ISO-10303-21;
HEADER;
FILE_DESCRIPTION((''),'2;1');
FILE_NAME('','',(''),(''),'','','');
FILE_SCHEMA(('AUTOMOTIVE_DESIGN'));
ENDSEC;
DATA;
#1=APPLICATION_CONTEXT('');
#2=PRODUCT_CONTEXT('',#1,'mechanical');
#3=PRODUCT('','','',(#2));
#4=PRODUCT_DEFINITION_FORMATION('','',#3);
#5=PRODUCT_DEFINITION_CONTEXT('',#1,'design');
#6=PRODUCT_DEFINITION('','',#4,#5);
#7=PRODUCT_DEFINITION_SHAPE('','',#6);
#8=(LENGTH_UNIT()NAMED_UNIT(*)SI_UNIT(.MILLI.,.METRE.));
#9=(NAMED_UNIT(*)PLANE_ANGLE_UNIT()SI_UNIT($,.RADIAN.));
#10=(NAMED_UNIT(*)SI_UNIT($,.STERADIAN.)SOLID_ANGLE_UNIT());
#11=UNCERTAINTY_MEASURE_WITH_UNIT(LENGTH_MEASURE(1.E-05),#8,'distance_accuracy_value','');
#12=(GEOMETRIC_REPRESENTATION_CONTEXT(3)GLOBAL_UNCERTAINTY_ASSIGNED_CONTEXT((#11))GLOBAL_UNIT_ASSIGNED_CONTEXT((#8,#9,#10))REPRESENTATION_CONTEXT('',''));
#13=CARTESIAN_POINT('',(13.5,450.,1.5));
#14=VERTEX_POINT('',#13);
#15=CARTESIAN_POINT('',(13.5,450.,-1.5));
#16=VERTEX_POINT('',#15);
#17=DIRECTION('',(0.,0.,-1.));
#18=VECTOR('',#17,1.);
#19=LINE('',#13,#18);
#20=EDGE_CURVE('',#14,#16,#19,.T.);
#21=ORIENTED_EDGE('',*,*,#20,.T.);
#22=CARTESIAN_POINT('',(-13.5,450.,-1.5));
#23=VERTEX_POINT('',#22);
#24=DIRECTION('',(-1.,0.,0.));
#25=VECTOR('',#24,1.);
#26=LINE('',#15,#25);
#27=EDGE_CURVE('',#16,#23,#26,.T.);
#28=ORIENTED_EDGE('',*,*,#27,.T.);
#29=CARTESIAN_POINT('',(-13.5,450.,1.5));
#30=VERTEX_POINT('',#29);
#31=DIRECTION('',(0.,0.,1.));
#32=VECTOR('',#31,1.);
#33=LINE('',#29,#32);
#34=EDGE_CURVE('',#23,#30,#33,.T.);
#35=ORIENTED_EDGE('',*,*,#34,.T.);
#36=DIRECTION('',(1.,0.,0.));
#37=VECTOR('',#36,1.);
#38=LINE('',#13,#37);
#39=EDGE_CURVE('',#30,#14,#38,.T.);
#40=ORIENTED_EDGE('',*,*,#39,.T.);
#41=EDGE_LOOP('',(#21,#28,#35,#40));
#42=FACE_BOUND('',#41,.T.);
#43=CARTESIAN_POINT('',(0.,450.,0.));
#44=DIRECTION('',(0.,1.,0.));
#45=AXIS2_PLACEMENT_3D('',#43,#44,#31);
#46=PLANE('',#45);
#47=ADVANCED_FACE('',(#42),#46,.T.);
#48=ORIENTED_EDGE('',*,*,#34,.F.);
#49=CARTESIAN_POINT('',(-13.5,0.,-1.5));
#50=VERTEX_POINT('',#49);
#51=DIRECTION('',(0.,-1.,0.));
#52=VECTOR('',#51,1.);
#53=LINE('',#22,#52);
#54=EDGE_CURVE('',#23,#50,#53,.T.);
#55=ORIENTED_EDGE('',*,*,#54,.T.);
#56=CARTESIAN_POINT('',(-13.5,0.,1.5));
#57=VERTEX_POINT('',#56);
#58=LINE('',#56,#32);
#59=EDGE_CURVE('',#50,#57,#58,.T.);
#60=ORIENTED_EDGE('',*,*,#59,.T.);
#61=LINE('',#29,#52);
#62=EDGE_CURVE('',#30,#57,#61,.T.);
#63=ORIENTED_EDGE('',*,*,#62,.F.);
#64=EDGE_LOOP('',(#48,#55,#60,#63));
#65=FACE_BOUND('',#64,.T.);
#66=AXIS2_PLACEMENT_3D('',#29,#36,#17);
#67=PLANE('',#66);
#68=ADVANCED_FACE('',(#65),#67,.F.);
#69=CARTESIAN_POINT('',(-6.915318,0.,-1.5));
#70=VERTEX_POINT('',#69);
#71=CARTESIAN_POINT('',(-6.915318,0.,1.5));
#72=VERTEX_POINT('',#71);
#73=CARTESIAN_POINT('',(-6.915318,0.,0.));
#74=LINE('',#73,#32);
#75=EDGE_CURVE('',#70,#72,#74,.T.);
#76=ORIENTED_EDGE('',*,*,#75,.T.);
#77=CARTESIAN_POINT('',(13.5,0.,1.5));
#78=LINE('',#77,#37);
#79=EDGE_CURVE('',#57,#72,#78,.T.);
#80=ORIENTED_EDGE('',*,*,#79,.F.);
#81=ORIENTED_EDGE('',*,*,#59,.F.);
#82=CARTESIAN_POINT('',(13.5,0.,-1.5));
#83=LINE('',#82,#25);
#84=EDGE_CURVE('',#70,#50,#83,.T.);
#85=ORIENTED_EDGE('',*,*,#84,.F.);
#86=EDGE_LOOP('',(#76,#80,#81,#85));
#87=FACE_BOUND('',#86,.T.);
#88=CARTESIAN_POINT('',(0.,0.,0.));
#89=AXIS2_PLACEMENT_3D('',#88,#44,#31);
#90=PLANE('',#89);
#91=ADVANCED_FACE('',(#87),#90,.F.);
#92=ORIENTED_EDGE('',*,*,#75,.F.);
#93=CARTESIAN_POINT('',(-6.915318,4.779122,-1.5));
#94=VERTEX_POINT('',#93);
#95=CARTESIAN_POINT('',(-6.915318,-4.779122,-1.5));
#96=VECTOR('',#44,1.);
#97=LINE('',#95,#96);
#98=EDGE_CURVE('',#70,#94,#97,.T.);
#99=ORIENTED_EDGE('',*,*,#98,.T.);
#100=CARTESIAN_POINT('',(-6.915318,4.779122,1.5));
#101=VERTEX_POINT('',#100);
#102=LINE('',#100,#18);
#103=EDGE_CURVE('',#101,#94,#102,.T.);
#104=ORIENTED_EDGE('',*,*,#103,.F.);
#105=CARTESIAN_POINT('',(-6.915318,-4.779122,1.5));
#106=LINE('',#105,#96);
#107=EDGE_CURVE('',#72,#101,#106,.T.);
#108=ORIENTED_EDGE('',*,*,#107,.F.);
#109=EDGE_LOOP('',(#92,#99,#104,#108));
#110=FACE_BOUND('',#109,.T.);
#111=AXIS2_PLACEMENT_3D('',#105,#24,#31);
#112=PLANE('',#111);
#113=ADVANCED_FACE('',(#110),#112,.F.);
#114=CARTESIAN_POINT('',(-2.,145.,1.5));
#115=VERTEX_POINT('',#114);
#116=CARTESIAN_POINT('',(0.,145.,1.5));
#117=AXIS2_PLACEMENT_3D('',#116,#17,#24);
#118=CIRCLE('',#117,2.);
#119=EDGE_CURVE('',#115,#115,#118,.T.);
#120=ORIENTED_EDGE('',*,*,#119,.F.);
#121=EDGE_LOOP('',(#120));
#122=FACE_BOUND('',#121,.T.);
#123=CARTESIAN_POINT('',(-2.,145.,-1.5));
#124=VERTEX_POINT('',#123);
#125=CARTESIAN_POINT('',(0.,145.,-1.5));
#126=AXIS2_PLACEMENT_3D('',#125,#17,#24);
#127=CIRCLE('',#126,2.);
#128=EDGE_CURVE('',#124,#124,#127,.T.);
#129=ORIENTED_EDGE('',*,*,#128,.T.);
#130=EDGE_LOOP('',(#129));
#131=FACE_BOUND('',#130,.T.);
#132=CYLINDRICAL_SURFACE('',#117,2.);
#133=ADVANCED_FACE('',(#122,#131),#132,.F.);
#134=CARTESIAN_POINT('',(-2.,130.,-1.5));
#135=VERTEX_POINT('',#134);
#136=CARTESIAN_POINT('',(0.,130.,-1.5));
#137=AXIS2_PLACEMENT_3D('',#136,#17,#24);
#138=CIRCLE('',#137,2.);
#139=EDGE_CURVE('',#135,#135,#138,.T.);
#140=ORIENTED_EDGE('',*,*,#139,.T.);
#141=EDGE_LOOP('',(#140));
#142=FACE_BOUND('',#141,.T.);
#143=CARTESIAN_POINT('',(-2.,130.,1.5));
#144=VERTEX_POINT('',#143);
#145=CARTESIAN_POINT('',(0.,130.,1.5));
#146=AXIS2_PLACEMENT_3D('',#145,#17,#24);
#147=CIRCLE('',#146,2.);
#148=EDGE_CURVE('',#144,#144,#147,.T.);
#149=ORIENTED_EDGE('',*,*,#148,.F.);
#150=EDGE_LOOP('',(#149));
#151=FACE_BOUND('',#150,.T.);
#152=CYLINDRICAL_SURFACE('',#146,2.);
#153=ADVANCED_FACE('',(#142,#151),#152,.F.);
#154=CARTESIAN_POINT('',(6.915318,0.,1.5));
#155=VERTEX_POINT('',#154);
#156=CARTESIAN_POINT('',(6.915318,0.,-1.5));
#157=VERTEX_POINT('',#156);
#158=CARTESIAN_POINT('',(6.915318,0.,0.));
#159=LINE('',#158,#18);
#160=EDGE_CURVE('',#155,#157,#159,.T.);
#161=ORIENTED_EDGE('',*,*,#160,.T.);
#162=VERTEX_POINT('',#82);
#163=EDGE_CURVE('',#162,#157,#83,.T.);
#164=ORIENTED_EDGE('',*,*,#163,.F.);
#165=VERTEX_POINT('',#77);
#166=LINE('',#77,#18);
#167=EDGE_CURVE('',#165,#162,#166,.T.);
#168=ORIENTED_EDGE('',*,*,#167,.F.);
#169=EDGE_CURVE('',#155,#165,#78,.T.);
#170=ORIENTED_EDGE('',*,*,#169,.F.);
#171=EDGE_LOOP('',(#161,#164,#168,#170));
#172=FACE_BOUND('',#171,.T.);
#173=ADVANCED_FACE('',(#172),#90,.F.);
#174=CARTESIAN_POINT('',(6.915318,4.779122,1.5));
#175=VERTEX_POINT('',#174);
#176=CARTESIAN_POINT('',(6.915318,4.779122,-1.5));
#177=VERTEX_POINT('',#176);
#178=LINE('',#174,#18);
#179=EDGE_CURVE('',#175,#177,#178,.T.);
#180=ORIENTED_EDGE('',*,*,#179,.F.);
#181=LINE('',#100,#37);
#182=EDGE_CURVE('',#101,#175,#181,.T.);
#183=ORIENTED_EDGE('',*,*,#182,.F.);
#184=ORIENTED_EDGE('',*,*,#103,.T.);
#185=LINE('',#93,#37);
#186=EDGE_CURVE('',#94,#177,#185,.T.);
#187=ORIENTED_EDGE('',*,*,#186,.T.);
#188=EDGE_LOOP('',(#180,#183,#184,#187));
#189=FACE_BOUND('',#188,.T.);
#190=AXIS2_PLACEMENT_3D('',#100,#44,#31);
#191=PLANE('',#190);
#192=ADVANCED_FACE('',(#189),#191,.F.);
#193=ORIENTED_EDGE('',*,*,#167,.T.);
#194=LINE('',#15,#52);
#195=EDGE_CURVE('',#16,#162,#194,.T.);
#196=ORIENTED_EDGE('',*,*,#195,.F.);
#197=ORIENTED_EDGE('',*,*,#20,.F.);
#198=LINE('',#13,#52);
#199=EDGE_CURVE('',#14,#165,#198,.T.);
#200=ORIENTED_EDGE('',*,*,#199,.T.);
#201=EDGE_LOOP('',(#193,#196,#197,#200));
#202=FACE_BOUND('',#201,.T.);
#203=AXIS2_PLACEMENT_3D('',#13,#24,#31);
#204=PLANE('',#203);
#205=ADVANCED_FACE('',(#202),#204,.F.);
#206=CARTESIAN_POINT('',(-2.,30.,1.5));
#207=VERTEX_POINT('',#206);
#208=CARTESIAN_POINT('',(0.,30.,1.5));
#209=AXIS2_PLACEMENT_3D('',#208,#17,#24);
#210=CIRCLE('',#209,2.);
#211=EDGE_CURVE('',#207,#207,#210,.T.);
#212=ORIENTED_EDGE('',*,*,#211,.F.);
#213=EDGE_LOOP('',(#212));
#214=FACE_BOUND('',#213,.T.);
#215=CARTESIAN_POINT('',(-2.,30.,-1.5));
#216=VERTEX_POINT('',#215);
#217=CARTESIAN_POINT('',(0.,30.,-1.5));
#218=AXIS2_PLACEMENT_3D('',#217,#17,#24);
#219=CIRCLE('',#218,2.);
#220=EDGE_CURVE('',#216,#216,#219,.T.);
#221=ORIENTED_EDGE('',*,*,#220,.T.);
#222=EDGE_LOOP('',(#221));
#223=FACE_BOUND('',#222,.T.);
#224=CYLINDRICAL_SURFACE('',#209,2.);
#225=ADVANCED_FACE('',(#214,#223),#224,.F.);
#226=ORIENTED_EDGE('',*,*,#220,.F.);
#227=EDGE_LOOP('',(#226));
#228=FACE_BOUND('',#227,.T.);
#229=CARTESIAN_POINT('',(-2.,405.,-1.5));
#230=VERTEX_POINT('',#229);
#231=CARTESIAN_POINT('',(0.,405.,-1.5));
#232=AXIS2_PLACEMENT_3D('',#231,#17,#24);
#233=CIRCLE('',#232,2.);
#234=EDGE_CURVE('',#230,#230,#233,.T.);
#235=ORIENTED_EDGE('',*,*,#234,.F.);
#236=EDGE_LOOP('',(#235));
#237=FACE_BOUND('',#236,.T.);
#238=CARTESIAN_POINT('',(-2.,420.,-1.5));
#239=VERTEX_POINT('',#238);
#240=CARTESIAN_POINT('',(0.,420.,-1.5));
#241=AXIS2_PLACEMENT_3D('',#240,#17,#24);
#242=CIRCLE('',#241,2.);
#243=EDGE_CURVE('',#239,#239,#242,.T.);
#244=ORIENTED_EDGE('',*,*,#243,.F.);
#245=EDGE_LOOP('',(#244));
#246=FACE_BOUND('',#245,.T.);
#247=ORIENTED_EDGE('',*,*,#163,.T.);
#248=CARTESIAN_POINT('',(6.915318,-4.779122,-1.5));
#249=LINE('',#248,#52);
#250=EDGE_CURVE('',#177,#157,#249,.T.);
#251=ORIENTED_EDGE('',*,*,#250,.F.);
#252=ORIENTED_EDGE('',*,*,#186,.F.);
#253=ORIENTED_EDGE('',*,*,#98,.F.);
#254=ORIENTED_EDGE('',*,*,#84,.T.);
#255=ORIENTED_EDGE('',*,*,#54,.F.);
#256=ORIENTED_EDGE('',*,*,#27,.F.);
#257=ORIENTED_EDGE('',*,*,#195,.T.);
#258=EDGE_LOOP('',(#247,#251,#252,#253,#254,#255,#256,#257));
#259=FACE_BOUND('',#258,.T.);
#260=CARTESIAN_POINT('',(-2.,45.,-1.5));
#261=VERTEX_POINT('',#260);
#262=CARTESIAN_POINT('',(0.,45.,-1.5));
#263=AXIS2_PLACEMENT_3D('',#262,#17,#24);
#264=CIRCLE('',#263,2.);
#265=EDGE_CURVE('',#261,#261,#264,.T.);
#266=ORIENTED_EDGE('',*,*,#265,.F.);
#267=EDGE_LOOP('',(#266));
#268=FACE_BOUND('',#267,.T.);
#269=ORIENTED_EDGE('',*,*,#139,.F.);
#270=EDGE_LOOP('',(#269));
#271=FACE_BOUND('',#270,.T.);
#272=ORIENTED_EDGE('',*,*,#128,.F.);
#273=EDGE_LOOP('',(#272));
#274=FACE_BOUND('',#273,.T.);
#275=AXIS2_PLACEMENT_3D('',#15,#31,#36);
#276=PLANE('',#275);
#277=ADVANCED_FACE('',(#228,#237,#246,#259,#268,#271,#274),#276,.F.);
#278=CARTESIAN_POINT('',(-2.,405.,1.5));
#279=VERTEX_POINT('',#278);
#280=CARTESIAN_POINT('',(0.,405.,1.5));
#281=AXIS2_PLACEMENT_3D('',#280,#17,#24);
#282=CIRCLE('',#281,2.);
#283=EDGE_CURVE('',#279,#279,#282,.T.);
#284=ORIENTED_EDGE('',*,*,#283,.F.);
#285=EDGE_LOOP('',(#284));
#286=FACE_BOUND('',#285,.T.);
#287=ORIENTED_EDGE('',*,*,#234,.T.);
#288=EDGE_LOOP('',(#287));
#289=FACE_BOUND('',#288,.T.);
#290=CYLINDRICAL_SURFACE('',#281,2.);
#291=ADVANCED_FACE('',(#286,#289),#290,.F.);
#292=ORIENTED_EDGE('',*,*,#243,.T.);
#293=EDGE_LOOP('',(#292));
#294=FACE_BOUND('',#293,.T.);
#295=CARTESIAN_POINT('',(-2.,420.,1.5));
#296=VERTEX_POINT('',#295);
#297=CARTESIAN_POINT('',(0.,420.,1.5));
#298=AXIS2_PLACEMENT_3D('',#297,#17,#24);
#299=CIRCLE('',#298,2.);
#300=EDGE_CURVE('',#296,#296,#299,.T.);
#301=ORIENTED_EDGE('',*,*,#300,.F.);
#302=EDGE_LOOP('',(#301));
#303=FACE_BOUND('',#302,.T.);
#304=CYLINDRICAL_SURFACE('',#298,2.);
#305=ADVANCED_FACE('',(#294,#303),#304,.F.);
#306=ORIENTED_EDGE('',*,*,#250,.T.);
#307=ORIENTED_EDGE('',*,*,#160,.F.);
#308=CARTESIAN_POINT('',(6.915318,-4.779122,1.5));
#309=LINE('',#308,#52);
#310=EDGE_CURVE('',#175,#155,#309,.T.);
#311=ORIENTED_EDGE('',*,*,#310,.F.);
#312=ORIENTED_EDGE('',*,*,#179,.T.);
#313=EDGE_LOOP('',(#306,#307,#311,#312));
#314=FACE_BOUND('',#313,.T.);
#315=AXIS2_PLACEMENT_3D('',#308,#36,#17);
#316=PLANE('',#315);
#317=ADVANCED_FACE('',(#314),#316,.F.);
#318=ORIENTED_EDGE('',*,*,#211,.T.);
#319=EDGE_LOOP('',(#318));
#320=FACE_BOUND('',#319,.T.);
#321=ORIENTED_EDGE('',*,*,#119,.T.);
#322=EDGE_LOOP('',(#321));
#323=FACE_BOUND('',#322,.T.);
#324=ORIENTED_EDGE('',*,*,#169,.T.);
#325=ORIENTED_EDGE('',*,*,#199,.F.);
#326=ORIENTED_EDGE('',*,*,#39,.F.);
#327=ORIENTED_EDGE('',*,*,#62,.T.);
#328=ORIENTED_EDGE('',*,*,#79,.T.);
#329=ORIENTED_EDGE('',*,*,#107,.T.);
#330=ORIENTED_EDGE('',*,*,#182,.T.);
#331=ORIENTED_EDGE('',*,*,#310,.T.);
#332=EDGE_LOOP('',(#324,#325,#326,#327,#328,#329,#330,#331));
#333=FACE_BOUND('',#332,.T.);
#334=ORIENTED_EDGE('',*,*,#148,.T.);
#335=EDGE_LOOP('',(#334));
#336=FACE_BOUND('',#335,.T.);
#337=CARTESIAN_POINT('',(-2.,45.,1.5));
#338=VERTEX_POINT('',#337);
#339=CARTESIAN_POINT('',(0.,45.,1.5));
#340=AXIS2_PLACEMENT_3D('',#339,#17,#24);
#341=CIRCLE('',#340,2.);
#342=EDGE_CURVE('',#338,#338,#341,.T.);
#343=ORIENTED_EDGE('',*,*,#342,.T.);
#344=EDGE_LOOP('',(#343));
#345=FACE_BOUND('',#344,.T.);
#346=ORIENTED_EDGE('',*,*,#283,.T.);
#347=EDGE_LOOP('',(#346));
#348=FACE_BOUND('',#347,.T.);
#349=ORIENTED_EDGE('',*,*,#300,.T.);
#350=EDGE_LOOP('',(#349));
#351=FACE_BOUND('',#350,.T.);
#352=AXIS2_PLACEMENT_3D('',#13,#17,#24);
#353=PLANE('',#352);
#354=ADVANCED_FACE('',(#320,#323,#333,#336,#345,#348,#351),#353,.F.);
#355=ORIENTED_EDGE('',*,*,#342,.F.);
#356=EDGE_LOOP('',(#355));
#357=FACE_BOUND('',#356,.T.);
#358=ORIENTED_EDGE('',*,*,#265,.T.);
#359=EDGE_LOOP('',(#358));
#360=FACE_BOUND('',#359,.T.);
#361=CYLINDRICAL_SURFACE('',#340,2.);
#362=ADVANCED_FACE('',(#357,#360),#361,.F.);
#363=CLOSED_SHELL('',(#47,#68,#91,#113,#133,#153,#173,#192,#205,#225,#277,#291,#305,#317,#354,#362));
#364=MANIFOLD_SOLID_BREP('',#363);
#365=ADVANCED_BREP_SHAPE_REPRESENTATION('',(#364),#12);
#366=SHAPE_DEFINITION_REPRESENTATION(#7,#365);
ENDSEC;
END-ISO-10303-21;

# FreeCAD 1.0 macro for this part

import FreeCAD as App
import Part
import Sketcher

V = App.Vector


def add_polygon(sketch, points):
    """Adds a closed chain of lines whose ends are joined by coincident constraints."""
    first, n = sketch.GeometryCount, len(points)
    for a, b in zip(points, points[1:] + points[:1]):
        sketch.addGeometry(Part.LineSegment(App.Vector(*a, 0), App.Vector(*b, 0)), False)
    for i in range(n):
        sketch.addConstraint(Sketcher.Constraint("Coincident", first + i, 2, first + (i + 1) % n, 1))

doc = App.newDocument("Part")
body = doc.addObject("PartDesign::Body", "Body")

sketch1 = body.newObject("Sketcher::SketchObject", "Sketch")
sketch1.AttachmentSupport = (doc.getObject("XZ_Plane"), [""])
sketch1.MapMode = "FlatFace"
add_polygon(sketch1, [(-13.5, -1.5), (-13.5, 1.5), (13.5, 1.5), (13.5, -1.5)])
sketch1.addConstraint(Sketcher.Constraint("Vertical", 0))
sketch1.addConstraint(Sketcher.Constraint("Horizontal", 1))
sketch1.addConstraint(Sketcher.Constraint("Vertical", 2))
sketch1.addConstraint(Sketcher.Constraint("Horizontal", 3))
sketch1.addConstraint(Sketcher.Constraint("Symmetric", 0, 2, 2, 2, -1, 1))
sketch1.addConstraint(Sketcher.Constraint("DistanceX", 1, 1, 1, 2, 27.0))
sketch1.addConstraint(Sketcher.Constraint("DistanceY", 0, 1, 0, 2, 3.0))
pad1 = body.newObject("PartDesign::Pad", "Pad")
pad1.Profile = sketch1
pad1.Length = 450
pad1.Reversed = True

sketch2 = body.newObject("Sketcher::SketchObject", "Sketch001")
sketch2.AttachmentSupport = (doc.getObject("XY_Plane"), [""])
sketch2.MapMode = "FlatFace"
sketch2.AttachmentOffset = App.Placement(V(0, 0, -1.5), App.Rotation())
add_polygon(sketch2, [(7, 5), (7, -5), (-7, -5), (-7, 5)])
sketch2.addConstraint(Sketcher.Constraint("Vertical", 0))
sketch2.addConstraint(Sketcher.Constraint("Horizontal", 1))
sketch2.addConstraint(Sketcher.Constraint("Vertical", 2))
sketch2.addConstraint(Sketcher.Constraint("Horizontal", 3))
sketch2.addConstraint(Sketcher.Constraint("Symmetric", 0, 2, 2, 2, -1, 1))
sketch2.addConstraint(Sketcher.Constraint("DistanceX", 1, 2, 1, 1, 13.830636))
sketch2.addConstraint(Sketcher.Constraint("DistanceY", 0, 2, 0, 1, 9.558243))
pocket1 = body.newObject("PartDesign::Pocket", "Pocket")
pocket1.Profile = sketch2
pocket1.Type = "ThroughAll"
pocket1.Reversed = True

sketch3 = body.newObject("Sketcher::SketchObject", "Sketch002")
sketch3.AttachmentSupport = (doc.getObject("XY_Plane"), [""])
sketch3.MapMode = "FlatFace"
sketch3.AttachmentOffset = App.Placement(V(0, 0, -1.5), App.Rotation())
sketch3.addGeometry(Part.Circle(V(0, 420, 0), V(0, 0, 1), 2), False)
sketch3.addGeometry(Part.Circle(V(0, 405, 0), V(0, 0, 1), 2), False)
sketch3.addGeometry(Part.Circle(V(0, 30, 0), V(0, 0, 1), 2), False)
sketch3.addGeometry(Part.Circle(V(0, 45, 0), V(0, 0, 1), 2), False)
sketch3.addGeometry(Part.Circle(V(0, 130, 0), V(0, 0, 1), 2), False)
sketch3.addGeometry(Part.Circle(V(0, 145, 0), V(0, 0, 1), 2), False)
sketch3.addConstraint(Sketcher.Constraint("Equal", 0, 1))
sketch3.addConstraint(Sketcher.Constraint("Equal", 1, 2))
sketch3.addConstraint(Sketcher.Constraint("Equal", 2, 3))
sketch3.addConstraint(Sketcher.Constraint("Equal", 3, 4))
sketch3.addConstraint(Sketcher.Constraint("Equal", 4, 5))
sketch3.addConstraint(Sketcher.Constraint("PointOnObject", 0, 3, -2))
sketch3.addConstraint(Sketcher.Constraint("PointOnObject", 1, 3, -2))
sketch3.addConstraint(Sketcher.Constraint("PointOnObject", 2, 3, -2))
sketch3.addConstraint(Sketcher.Constraint("PointOnObject", 3, 3, -2))
sketch3.addConstraint(Sketcher.Constraint("PointOnObject", 4, 3, -2))
sketch3.addConstraint(Sketcher.Constraint("PointOnObject", 5, 3, -2))
sketch3.addConstraint(Sketcher.Constraint("Diameter", 0, 4.0))
sketch3.addConstraint(Sketcher.Constraint("DistanceY", -1, 1, 0, 3, 420.0))
sketch3.addConstraint(Sketcher.Constraint("DistanceY", -1, 1, 1, 3, 405.0))
sketch3.addConstraint(Sketcher.Constraint("DistanceY", -1, 1, 2, 3, 30.0))
sketch3.addConstraint(Sketcher.Constraint("DistanceY", -1, 1, 3, 3, 45.0))
sketch3.addConstraint(Sketcher.Constraint("DistanceY", -1, 1, 4, 3, 130.0))
sketch3.addConstraint(Sketcher.Constraint("DistanceY", -1, 1, 5, 3, 145.0))
pocket2 = body.newObject("PartDesign::Pocket", "Pocket001")
pocket2.Profile = sketch3
pocket2.Type = "ThroughAll"
pocket2.Reversed = True

doc.recompute()
